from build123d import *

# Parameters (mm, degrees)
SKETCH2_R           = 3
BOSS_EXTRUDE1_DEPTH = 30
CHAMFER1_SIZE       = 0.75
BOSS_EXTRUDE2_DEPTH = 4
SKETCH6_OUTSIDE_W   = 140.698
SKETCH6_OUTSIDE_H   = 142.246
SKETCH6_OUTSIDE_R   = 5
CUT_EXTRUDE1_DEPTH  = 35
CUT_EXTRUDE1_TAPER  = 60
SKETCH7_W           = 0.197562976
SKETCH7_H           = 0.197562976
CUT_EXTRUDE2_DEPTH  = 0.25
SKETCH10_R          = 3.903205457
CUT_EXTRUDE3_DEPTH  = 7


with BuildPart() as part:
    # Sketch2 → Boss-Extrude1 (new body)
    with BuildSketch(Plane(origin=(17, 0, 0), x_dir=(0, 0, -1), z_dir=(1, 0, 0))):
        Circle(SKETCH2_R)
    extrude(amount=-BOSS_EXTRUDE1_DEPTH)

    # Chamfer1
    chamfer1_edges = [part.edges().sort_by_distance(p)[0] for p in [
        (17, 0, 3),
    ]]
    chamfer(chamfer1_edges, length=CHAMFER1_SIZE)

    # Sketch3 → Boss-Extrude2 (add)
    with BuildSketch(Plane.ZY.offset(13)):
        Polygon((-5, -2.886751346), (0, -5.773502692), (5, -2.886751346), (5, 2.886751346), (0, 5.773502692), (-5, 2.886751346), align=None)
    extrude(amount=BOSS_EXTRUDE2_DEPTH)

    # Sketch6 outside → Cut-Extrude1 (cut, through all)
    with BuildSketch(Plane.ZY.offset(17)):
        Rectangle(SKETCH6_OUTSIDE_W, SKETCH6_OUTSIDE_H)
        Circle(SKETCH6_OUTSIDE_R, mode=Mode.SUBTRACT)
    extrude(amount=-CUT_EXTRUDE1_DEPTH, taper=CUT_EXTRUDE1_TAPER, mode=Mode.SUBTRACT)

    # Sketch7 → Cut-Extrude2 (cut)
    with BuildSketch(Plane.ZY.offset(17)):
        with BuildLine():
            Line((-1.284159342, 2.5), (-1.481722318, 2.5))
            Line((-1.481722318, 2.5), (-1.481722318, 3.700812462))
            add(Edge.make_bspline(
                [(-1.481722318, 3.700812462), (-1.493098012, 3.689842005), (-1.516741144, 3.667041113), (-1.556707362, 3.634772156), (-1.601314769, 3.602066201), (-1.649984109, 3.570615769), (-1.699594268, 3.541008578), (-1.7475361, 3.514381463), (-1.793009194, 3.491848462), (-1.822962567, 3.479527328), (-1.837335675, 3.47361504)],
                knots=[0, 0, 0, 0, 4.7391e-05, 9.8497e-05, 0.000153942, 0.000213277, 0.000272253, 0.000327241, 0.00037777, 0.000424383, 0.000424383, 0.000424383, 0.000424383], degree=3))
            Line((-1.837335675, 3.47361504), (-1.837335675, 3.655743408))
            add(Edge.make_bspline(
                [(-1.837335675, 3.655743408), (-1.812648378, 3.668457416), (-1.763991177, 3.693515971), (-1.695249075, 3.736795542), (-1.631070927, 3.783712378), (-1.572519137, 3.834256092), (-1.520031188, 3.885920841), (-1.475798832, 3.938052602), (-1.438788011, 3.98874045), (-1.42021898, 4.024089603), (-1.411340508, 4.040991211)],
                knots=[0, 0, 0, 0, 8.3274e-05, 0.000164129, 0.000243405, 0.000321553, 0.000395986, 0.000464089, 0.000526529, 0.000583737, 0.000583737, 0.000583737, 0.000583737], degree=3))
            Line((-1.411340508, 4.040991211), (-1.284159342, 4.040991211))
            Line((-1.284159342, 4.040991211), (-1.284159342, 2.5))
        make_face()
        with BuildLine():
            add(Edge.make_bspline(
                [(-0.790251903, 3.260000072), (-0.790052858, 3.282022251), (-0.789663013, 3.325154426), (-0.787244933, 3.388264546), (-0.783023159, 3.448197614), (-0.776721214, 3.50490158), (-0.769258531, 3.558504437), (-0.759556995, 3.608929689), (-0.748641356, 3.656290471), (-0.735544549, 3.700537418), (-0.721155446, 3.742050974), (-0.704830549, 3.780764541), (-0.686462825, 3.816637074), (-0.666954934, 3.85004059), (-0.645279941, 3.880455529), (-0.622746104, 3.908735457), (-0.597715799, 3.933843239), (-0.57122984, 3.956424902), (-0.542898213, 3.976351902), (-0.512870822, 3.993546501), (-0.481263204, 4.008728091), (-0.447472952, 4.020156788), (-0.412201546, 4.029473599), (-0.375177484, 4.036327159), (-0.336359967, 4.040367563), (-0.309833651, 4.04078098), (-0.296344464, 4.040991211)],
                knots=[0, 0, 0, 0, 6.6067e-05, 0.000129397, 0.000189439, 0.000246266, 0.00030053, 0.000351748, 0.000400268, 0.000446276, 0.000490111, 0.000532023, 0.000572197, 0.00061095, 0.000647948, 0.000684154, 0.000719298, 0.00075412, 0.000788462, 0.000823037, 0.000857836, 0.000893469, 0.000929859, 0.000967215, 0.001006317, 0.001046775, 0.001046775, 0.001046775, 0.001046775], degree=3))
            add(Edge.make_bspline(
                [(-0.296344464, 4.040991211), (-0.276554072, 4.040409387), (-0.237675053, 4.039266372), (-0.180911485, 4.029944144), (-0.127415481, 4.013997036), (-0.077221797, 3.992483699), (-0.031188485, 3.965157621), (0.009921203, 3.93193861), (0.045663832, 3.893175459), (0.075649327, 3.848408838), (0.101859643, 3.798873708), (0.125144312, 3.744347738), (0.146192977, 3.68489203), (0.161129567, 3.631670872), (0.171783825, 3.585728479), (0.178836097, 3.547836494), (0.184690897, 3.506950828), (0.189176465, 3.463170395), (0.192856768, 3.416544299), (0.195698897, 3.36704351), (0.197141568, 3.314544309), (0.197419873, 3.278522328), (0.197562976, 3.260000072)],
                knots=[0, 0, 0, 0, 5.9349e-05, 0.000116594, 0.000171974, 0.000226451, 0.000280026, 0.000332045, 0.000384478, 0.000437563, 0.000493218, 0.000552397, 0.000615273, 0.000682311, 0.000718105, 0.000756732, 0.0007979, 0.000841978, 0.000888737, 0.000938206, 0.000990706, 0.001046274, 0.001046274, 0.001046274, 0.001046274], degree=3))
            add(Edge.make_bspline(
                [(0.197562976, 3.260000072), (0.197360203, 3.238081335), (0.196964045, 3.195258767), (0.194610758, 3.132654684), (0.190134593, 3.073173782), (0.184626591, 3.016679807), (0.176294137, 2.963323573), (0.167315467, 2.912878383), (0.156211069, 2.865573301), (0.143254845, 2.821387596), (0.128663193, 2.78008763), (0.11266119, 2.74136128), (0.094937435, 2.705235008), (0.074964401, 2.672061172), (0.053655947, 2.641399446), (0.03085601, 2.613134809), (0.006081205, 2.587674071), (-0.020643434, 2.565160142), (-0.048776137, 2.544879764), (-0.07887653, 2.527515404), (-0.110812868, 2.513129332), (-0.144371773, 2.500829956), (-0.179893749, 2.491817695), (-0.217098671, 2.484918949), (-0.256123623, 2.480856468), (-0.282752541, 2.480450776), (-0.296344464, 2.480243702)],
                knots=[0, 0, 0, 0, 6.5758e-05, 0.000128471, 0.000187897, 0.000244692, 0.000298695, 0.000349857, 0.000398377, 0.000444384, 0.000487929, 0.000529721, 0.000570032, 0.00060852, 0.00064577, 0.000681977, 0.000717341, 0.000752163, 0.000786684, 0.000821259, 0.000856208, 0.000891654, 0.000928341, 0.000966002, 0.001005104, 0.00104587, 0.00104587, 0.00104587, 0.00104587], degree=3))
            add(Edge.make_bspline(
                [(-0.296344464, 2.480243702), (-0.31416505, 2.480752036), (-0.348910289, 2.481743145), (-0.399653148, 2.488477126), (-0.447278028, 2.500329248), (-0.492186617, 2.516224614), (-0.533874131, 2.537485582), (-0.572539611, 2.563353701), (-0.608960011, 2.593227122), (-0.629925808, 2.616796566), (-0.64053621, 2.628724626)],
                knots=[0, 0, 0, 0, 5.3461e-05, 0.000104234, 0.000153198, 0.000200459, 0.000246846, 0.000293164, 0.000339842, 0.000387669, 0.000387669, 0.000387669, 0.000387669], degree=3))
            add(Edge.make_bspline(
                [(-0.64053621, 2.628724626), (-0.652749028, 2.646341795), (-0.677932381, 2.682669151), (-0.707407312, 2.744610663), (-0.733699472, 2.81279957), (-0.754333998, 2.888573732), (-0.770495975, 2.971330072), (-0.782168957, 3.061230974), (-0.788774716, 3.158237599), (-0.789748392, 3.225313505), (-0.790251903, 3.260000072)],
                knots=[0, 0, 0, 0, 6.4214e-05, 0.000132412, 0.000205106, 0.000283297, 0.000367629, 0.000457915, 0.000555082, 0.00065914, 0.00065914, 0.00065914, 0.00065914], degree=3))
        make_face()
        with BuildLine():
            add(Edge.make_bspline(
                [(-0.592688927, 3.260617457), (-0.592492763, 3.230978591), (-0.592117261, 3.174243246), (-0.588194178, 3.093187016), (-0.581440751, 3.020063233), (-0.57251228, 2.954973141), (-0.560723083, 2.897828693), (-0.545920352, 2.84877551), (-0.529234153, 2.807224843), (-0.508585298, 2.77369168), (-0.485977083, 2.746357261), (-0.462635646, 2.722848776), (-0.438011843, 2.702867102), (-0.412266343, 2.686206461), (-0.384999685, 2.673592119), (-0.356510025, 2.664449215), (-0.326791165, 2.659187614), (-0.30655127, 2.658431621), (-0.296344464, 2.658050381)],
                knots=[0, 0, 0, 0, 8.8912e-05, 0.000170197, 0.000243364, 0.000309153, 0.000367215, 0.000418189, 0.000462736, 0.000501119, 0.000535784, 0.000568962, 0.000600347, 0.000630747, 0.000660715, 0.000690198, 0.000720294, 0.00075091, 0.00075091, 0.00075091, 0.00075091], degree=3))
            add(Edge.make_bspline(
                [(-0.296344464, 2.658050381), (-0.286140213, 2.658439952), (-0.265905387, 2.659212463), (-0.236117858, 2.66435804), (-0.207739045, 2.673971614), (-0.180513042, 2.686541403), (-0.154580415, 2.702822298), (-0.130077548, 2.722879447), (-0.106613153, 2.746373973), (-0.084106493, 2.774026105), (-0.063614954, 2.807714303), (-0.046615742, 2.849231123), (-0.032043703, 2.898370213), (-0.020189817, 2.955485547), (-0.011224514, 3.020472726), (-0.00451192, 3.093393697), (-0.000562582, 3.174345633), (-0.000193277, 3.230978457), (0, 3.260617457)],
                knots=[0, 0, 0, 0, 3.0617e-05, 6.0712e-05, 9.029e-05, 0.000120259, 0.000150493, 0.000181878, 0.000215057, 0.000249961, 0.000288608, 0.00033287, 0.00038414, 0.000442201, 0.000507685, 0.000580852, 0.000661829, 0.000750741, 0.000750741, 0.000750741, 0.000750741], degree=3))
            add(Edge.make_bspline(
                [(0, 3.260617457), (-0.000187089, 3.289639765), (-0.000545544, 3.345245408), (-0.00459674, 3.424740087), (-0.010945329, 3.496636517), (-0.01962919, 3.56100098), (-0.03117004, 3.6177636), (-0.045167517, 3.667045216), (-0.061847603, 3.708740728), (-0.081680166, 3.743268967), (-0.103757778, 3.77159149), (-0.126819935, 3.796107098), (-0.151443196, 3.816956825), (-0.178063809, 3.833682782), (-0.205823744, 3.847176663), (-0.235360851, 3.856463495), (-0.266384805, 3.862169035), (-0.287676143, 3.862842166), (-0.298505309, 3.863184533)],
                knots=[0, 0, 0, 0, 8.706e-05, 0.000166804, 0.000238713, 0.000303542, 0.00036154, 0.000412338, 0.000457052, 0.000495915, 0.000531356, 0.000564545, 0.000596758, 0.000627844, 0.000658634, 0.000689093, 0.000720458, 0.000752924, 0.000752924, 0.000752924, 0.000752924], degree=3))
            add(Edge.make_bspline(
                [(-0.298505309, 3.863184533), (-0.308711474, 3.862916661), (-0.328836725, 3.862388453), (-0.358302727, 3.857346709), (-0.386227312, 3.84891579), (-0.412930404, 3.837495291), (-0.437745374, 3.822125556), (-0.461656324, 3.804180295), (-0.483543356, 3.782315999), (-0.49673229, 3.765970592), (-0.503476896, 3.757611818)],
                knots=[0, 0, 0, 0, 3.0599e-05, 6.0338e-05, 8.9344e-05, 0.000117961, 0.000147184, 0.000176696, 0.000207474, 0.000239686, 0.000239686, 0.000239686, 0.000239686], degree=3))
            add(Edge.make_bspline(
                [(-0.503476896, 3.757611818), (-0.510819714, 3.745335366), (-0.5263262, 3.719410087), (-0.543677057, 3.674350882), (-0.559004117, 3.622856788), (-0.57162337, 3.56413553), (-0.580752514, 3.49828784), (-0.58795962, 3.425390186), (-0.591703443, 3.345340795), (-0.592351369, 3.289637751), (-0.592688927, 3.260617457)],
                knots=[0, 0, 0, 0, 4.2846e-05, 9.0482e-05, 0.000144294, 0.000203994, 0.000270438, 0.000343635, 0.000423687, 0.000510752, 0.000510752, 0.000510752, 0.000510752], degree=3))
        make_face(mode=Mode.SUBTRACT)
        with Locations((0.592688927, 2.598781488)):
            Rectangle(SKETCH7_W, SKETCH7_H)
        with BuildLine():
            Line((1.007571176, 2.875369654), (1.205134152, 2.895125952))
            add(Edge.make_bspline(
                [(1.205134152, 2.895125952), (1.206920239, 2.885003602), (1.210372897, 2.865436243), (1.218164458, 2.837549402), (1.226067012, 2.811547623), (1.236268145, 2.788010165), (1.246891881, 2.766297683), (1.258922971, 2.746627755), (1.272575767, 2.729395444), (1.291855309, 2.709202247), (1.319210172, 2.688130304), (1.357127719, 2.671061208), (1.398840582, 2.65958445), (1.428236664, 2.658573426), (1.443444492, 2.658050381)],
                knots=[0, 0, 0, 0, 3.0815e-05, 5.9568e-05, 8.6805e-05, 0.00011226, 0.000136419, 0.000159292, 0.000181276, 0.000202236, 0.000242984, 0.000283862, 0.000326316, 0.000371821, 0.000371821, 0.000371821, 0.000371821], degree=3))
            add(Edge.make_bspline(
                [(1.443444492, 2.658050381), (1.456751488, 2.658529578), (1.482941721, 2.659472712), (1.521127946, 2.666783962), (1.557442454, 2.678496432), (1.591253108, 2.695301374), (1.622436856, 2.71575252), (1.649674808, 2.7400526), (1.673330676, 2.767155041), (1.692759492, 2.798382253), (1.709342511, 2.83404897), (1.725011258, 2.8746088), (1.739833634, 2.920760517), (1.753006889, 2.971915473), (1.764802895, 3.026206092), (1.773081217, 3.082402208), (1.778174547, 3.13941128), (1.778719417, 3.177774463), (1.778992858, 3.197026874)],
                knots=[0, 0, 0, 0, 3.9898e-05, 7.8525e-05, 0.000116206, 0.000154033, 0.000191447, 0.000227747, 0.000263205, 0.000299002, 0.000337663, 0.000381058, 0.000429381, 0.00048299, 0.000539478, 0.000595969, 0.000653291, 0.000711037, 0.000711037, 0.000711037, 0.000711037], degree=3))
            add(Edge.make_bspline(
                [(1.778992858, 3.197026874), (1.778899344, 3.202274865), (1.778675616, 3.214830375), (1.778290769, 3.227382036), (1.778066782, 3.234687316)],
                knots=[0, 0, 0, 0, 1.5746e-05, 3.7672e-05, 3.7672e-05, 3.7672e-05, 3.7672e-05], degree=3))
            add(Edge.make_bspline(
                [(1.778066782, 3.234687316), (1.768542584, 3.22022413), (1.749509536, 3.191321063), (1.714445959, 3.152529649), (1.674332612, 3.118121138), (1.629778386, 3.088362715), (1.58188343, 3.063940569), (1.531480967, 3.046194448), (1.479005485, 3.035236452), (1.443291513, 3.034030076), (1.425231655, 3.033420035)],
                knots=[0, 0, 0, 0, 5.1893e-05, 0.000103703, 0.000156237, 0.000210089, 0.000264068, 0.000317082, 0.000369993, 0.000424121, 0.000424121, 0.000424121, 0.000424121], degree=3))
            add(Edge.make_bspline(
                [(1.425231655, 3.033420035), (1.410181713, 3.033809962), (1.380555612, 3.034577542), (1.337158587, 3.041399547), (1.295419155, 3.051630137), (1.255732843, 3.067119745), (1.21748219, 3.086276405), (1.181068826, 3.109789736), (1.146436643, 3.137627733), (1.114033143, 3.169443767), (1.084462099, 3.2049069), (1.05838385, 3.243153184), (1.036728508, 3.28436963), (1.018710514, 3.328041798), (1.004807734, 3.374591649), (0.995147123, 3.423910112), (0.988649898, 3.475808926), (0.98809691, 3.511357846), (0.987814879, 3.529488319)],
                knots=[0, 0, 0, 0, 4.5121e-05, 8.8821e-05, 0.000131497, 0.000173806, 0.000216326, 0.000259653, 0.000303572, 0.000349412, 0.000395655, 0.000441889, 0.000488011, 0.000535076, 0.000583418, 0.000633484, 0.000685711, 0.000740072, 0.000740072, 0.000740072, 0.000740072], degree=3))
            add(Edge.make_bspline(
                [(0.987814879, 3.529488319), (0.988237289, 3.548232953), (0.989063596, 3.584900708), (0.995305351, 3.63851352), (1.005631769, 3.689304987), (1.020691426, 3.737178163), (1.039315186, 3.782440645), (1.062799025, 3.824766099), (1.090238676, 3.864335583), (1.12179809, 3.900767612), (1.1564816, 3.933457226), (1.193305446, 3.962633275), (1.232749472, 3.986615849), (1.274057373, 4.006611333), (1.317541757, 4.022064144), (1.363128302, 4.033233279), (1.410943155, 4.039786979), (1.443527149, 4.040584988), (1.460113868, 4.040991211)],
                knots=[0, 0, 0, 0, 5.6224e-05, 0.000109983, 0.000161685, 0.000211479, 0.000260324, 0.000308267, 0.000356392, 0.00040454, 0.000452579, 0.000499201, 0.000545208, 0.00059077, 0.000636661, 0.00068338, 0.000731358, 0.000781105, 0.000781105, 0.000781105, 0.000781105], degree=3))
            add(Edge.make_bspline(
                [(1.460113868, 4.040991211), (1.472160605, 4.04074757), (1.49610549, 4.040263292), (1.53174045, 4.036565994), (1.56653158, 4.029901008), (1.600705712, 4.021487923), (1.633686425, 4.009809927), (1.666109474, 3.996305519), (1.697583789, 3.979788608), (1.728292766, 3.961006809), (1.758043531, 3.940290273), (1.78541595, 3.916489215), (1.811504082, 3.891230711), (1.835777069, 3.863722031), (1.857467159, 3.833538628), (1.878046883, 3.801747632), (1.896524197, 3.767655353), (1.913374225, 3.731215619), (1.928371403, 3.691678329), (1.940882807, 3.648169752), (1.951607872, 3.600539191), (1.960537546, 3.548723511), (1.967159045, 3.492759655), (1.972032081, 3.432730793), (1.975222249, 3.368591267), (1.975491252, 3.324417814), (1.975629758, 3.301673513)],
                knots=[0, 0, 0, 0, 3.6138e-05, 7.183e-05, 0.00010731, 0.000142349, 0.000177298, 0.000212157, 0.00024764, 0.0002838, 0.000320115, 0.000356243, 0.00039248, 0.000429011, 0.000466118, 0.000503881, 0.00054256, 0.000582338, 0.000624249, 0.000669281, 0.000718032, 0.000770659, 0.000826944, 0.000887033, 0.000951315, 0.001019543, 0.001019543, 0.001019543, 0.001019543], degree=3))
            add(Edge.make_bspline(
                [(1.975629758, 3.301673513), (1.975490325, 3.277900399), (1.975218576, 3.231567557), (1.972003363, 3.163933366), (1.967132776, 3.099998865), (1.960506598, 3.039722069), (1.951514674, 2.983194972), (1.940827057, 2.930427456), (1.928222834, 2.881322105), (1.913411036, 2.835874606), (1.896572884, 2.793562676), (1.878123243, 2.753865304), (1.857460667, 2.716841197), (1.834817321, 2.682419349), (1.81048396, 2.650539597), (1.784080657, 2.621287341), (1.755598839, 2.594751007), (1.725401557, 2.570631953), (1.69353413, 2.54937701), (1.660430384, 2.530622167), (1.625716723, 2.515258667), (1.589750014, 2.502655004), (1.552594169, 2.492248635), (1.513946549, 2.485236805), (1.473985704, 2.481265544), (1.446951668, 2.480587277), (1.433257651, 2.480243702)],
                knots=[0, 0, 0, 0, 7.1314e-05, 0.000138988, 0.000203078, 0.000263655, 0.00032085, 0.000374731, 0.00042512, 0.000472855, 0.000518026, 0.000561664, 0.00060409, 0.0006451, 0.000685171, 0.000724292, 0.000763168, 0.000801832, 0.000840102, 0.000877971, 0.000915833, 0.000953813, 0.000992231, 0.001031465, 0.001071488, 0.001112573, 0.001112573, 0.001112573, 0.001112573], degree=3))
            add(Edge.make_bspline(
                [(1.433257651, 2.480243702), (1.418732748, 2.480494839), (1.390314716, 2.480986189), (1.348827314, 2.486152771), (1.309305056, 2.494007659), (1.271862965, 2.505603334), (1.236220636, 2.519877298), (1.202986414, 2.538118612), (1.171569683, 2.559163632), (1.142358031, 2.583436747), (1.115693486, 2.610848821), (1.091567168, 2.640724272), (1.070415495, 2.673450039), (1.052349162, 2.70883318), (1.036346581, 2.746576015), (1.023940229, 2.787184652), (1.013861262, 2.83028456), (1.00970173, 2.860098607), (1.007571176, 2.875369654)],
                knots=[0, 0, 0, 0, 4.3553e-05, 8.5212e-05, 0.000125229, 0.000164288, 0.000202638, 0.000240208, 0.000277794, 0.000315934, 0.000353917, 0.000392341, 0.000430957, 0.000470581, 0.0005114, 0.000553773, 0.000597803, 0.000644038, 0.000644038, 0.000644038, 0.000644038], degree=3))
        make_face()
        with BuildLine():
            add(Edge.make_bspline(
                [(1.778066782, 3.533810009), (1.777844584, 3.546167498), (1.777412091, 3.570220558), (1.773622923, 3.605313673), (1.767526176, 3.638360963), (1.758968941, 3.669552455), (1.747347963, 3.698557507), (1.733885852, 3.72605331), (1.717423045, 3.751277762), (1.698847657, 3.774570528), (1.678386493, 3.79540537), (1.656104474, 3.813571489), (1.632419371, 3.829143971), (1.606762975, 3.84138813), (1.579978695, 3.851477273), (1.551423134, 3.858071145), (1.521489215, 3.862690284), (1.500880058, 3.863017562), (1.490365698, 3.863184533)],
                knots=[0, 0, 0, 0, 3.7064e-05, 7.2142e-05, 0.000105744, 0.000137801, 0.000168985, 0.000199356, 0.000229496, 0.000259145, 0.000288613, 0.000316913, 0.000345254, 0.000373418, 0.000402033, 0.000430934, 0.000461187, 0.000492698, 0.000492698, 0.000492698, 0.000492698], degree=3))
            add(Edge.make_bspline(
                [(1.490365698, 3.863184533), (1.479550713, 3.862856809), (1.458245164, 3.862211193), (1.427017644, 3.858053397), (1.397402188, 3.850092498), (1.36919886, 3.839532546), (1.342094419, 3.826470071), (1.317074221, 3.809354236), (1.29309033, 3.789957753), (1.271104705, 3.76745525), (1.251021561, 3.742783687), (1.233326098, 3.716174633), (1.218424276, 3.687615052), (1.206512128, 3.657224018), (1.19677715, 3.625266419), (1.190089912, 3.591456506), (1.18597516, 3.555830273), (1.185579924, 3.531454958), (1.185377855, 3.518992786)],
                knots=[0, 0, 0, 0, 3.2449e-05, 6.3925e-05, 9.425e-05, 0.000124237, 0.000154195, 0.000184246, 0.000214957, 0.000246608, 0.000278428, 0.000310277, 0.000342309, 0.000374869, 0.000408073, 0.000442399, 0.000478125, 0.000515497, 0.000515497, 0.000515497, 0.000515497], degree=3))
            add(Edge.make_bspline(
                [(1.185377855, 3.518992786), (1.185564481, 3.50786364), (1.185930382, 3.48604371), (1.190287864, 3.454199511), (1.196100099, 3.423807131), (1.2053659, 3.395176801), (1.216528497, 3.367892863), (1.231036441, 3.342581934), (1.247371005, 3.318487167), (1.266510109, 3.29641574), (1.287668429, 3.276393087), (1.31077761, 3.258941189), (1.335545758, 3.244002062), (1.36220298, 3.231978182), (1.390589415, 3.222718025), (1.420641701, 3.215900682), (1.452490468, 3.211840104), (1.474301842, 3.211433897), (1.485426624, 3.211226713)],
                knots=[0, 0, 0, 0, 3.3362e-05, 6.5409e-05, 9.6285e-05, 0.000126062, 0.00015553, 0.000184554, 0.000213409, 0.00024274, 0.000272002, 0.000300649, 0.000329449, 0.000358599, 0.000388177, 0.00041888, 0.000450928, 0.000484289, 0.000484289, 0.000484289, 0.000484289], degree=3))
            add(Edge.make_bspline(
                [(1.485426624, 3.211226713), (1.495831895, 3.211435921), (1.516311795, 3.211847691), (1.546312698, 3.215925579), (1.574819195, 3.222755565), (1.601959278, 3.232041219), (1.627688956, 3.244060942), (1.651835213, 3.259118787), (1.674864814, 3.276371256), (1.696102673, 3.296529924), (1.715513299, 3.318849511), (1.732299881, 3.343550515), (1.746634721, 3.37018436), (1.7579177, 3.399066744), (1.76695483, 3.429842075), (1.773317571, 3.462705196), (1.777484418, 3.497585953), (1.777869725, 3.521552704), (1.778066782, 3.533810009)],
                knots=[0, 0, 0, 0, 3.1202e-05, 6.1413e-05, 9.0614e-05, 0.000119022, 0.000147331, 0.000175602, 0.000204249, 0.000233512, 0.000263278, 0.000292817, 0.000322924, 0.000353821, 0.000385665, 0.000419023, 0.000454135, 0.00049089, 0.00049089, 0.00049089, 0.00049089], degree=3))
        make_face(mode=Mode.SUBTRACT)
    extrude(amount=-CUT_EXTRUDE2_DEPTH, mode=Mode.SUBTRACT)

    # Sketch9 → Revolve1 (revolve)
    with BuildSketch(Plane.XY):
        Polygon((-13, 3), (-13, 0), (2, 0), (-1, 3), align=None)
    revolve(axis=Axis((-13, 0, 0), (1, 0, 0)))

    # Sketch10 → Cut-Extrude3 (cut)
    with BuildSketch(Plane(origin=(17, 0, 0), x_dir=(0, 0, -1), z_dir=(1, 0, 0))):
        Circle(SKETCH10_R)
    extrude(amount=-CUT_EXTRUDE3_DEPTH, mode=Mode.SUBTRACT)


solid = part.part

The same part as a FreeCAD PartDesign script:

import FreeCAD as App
import Part
import Sketcher

V = App.Vector
Q = App.Units.Quantity


def edges_at(feature, points):
    """Names of the edges that pass closest to the given points."""
    edges = feature.Shape.Edges
    near = lambda p: min(range(len(edges)), key=lambda i: edges[i].distToShape(Part.Vertex(*p))[0])
    return sorted({f"Edge{near(p) + 1}" for p in points})


def add_polygon(sketch, points):
    """Adds a closed chain of lines whose ends are joined by coincident constraints."""
    first, n = sketch.GeometryCount, len(points)
    for a, b in zip(points, points[1:] + points[:1]):
        sketch.addGeometry(Part.LineSegment(App.Vector(*a, 0), App.Vector(*b, 0)), False)
    for i in range(n):
        sketch.addConstraint(Sketcher.Constraint("Coincident", first + i, 2, first + (i + 1) % n, 1))

doc = App.newDocument("Part")
body = doc.addObject("PartDesign::Body", "Body")

# Sketch on YZ plane
sketch1 = body.newObject("Sketcher::SketchObject", "Sketch")
sketch1.AttachmentSupport = (doc.getObject("YZ_Plane"), [""])
sketch1.MapMode = "FlatFace"
sketch1.AttachmentOffset = App.Placement(V(0, 0, 17), App.Rotation())
sketch1.addGeometry(Part.Circle(V(0, 0, 0), V(0, 0, 1), 3), False)
sketch1.addConstraint(Sketcher.Constraint("Coincident", 0, 3, -1, 1))
sketch1.addConstraint(Sketcher.Constraint("Diameter", 0, 6.0))
pad1 = body.newObject("PartDesign::Pad", "Pad")
pad1.Profile = sketch1
pad1.Length = 30
pad1.Reversed = True
doc.recompute()

chamfer = body.newObject("PartDesign::Chamfer", "Chamfer")
chamfer.Base = (pad1, edges_at(pad1, [(17, 0, 3)]))
chamfer.Size = 0.75

# Sketch on YZ plane
sketch2 = body.newObject("Sketcher::SketchObject", "Sketch001")
sketch2.AttachmentSupport = (doc.getObject("YZ_Plane"), [""])
sketch2.MapMode = "FlatFace"
sketch2.AttachmentOffset = App.Placement(V(0, 0, -13), App.Rotation())
add_polygon(sketch2, [(-2.886751, -5), (-5.773503, 0), (-2.886751, 5), (2.886751, 5), (5.773503, 0), (2.886751, -5)])  # lines 0-5
sketch2.addConstraint(Sketcher.Constraint("Horizontal", 2))
sketch2.addConstraint(Sketcher.Constraint("Horizontal", 5))
sketch2.addConstraint(Sketcher.Constraint("Symmetric", 0, 2, 3, 2, -1, 1))
sketch2.addConstraint(Sketcher.Constraint("Symmetric", 1, 2, 4, 2, -1, 1))
sketch2.addConstraint(Sketcher.Constraint("PointOnObject", 0, 2, -1))
sketch2.addConstraint(Sketcher.Constraint("Parallel", 0, 3))
sketch2.addConstraint(Sketcher.Constraint("Vertical", 2, 2, 4, 2))
sketch2.addConstraint(Sketcher.Constraint("Angle", 0, Q("120 deg")))
sketch2.addConstraint(Sketcher.Constraint("DistanceY", -1, 1, 1, 2, 5.0))
sketch2.addConstraint(Sketcher.Constraint("DistanceX", 2, 1, 2, 2, 5.773503))
pad2 = body.newObject("PartDesign::Pad", "Pad001")
pad2.Profile = sketch2
pad2.Length = 4
pad2.Reversed = True

# Sketch on YZ plane
sketch3 = body.newObject("Sketcher::SketchObject", "Sketch002")
sketch3.AttachmentSupport = (doc.getObject("YZ_Plane"), [""])
sketch3.MapMode = "FlatFace"
sketch3.AttachmentOffset = App.Placement(V(0, 0, -17), App.Rotation())
add_polygon(sketch3, [(71.123, -70.349), (-71.123, -70.349), (-71.123, 70.349), (71.123, 70.349)])  # lines 0-3
sketch3.addGeometry(Part.Circle(V(0, 0, 0), V(0, 0, 1), 5), False)  # 4
sketch3.addConstraint(Sketcher.Constraint("Horizontal", 0))
sketch3.addConstraint(Sketcher.Constraint("Vertical", 1))
sketch3.addConstraint(Sketcher.Constraint("Horizontal", 2))
sketch3.addConstraint(Sketcher.Constraint("Vertical", 3))
sketch3.addConstraint(Sketcher.Constraint("Coincident", 4, 3, -1, 1))
sketch3.addConstraint(Sketcher.Constraint("Symmetric", 0, 2, 2, 2, -1, 1))
sketch3.addConstraint(Sketcher.Constraint("Diameter", 4, 10.0))
sketch3.addConstraint(Sketcher.Constraint("DistanceX", 0, 2, 0, 1, 142.246))
sketch3.addConstraint(Sketcher.Constraint("DistanceY", 1, 1, 1, 2, 140.698))
pocket1 = body.newObject("PartDesign::Pocket", "Pocket")
pocket1.Profile = sketch3
pocket1.Length = 35
pocket1.Reversed = True
pocket1.TaperAngle = 60

# Sketch on YZ plane
sketch4 = body.newObject("Sketcher::SketchObject", "Sketch003")
sketch4.AttachmentSupport = (doc.getObject("YZ_Plane"), [""])
sketch4.MapMode = "FlatFace"
sketch4.AttachmentOffset = App.Placement(V(0, 0, -17), App.Rotation())
sketch4.addGeometry(Part.LineSegment(V(2.5, -1.481722, 0), V(2.5, -1.284159, 0)), False)  # 0
sketch4.addGeometry(Part.LineSegment(V(2.5, -1.284159, 0), V(4.040991, -1.284159, 0)), False)  # 1
sketch4.addGeometry(Part.LineSegment(V(4.040991, -1.284159, 0), V(4.040991, -1.411341, 0)), False)  # 2
sketch4.addGeometry(Part.BSplineCurve([V(3.655743, -1.837336, 0), V(3.668457, -1.812648, 0), V(3.693516, -1.763991, 0), V(3.736796, -1.695249, 0), V(3.783712, -1.631071, 0), V(3.834256, -1.572519, 0), V(3.885921, -1.520031, 0), V(3.938053, -1.475799, 0), V(3.98874, -1.438788, 0), V(4.02409, -1.420219, 0), V(4.040991, -1.411341, 0)], [4, 1, 1, 1, 1, 1, 1, 1, 4], [0, 0.000083274, 0.000164129, 0.000243405, 0.000321553, 0.000395986, 0.000464089, 0.000526529, 0.000583737], False, 3, [1, 1, 1, 1, 1, 1, 1, 1, 1, 1, 1], False), False)  # 3
sketch4.addGeometry(Part.LineSegment(V(3.655743, -1.837336, 0), V(3.473615, -1.837336, 0)), False)  # 4
sketch4.addGeometry(Part.BSplineCurve([V(3.700812, -1.481722, 0), V(3.689842, -1.493098, 0), V(3.667041, -1.516741, 0), V(3.634772, -1.556707, 0), V(3.602066, -1.601315, 0), V(3.570616, -1.649984, 0), V(3.541009, -1.699594, 0), V(3.514381, -1.747536, 0), V(3.491848, -1.793009, 0), V(3.479527, -1.822963, 0), V(3.473615, -1.837336, 0)], [4, 1, 1, 1, 1, 1, 1, 1, 4], [0, 0.000047391, 0.000098497, 0.000153942, 0.000213277, 0.000272253, 0.000327241, 0.00037777, 0.000424383], False, 3, [1, 1, 1, 1, 1, 1, 1, 1, 1, 1, 1], False), False)  # 5
sketch4.addGeometry(Part.LineSegment(V(3.700812, -1.481722, 0), V(2.5, -1.481722, 0)), False)  # 6
sketch4.addGeometry(Part.BSplineCurve([V(3.26, -0.790252, 0), V(3.282022, -0.790053, 0), V(3.325154, -0.789663, 0), V(3.388265, -0.787245, 0), V(3.448198, -0.783023, 0), V(3.504902, -0.776721, 0), V(3.558504, -0.769259, 0), V(3.60893, -0.759557, 0), V(3.65629, -0.748641, 0), V(3.700537, -0.735545, 0), V(3.742051, -0.721155, 0), V(3.780765, -0.704831, 0), V(3.816637, -0.686463, 0), V(3.850041, -0.666955, 0), V(3.880456, -0.64528, 0), V(3.908735, -0.622746, 0), V(3.933843, -0.597716, 0), V(3.956425, -0.57123, 0), V(3.976352, -0.542898, 0), V(3.993547, -0.512871, 0), V(4.008728, -0.481263, 0), V(4.020157, -0.447473, 0), V(4.029474, -0.412202, 0), V(4.036327, -0.375177, 0), V(4.040368, -0.33636, 0), V(4.040781, -0.309834, 0), V(4.040991, -0.296344, 0)], [4, 1, 1, 1, 1, 1, 1, 1, 1, 1, 1, 1, 1, 1, 1, 1, 1, 1, 1, 1, 1, 1, 1, 1, 4], [0, 0.000066067, 0.000129397, 0.000189439, 0.000246266, 0.00030053, 0.000351748, 0.000400268, 0.000446276, 0.000490111, 0.000532023, 0.000572197, 0.00061095, 0.000647948, 0.000684154, 0.000719298, 0.00075412, 0.000788462, 0.000823037, 0.000857836, 0.000893469, 0.000929859, 0.000967215, 0.001006317, 0.001046775], False, 3, [1, 1, 1, 1, 1, 1, 1, 1, 1, 1, 1, 1, 1, 1, 1, 1, 1, 1, 1, 1, 1, 1, 1, 1, 1, 1, 1], False), False)  # 7
sketch4.addGeometry(Part.BSplineCurve([V(2.628725, -0.640536, 0), V(2.646342, -0.652749, 0), V(2.682669, -0.677932, 0), V(2.744611, -0.707407, 0), V(2.8128, -0.733699, 0), V(2.888574, -0.754334, 0), V(2.97133, -0.770496, 0), V(3.061231, -0.782169, 0), V(3.158238, -0.788775, 0), V(3.225314, -0.789748, 0), V(3.26, -0.790252, 0)], [4, 1, 1, 1, 1, 1, 1, 1, 4], [0, 0.000064214, 0.000132412, 0.000205106, 0.000283297, 0.000367629, 0.000457915, 0.000555082, 0.00065914], False, 3, [1, 1, 1, 1, 1, 1, 1, 1, 1, 1, 1], False), False)  # 8
sketch4.addGeometry(Part.BSplineCurve([V(2.480244, -0.296344, 0), V(2.480752, -0.314165, 0), V(2.481743, -0.34891, 0), V(2.488477, -0.399653, 0), V(2.500329, -0.447278, 0), V(2.516225, -0.492187, 0), V(2.537486, -0.533874, 0), V(2.563354, -0.57254, 0), V(2.593227, -0.60896, 0), V(2.616797, -0.629926, 0), V(2.628725, -0.640536, 0)], [4, 1, 1, 1, 1, 1, 1, 1, 4], [0, 0.000053461, 0.000104234, 0.000153198, 0.000200459, 0.000246846, 0.000293164, 0.000339842, 0.000387669], False, 3, [1, 1, 1, 1, 1, 1, 1, 1, 1, 1, 1], False), False)  # 9
sketch4.addGeometry(Part.BSplineCurve([V(3.26, 0.197563, 0), V(3.238081, 0.19736, 0), V(3.195259, 0.196964, 0), V(3.132655, 0.194611, 0), V(3.073174, 0.190135, 0), V(3.01668, 0.184627, 0), V(2.963324, 0.176294, 0), V(2.912878, 0.167315, 0), V(2.865573, 0.156211, 0), V(2.821388, 0.143255, 0), V(2.780088, 0.128663, 0), V(2.741361, 0.112661, 0), V(2.705235, 0.094937, 0), V(2.672061, 0.074964, 0), V(2.641399, 0.053656, 0), V(2.613135, 0.030856, 0), V(2.587674, 0.006081, 0), V(2.56516, -0.020643, 0), V(2.54488, -0.048776, 0), V(2.527515, -0.078877, 0), V(2.513129, -0.110813, 0), V(2.50083, -0.144372, 0), V(2.491818, -0.179894, 0), V(2.484919, -0.217099, 0), V(2.480856, -0.256124, 0), V(2.480451, -0.282753, 0), V(2.480244, -0.296344, 0)], [4, 1, 1, 1, 1, 1, 1, 1, 1, 1, 1, 1, 1, 1, 1, 1, 1, 1, 1, 1, 1, 1, 1, 1, 4], [0, 0.000065758, 0.000128471, 0.000187897, 0.000244692, 0.000298695, 0.000349857, 0.000398377, 0.000444384, 0.000487929, 0.000529721, 0.000570032, 0.00060852, 0.00064577, 0.000681977, 0.000717341, 0.000752163, 0.000786684, 0.000821259, 0.000856208, 0.000891654, 0.000928341, 0.000966002, 0.001005104, 0.00104587], False, 3, [1, 1, 1, 1, 1, 1, 1, 1, 1, 1, 1, 1, 1, 1, 1, 1, 1, 1, 1, 1, 1, 1, 1, 1, 1, 1, 1], False), False)  # 10
sketch4.addGeometry(Part.BSplineCurve([V(4.040991, -0.296344, 0), V(4.040409, -0.276554, 0), V(4.039266, -0.237675, 0), V(4.029944, -0.180911, 0), V(4.013997, -0.127415, 0), V(3.992484, -0.077222, 0), V(3.965158, -0.031188, 0), V(3.931939, 0.009921, 0), V(3.893175, 0.045664, 0), V(3.848409, 0.075649, 0), V(3.798874, 0.10186, 0), V(3.744348, 0.125144, 0), V(3.684892, 0.146193, 0), V(3.631671, 0.16113, 0), V(3.585728, 0.171784, 0), V(3.547836, 0.178836, 0), V(3.506951, 0.184691, 0), V(3.46317, 0.189176, 0), V(3.416544, 0.192857, 0), V(3.367044, 0.195699, 0), V(3.314544, 0.197142, 0), V(3.278522, 0.19742, 0), V(3.26, 0.197563, 0)], [4, 1, 1, 1, 1, 1, 1, 1, 1, 1, 1, 1, 1, 1, 1, 1, 1, 1, 1, 1, 4], [0, 0.000059349, 0.000116594, 0.000171974, 0.000226451, 0.000280026, 0.000332045, 0.000384478, 0.000437563, 0.000493218, 0.000552397, 0.000615273, 0.000682311, 0.000718105, 0.000756732, 0.0007979, 0.000841978, 0.000888737, 0.000938206, 0.000990706, 0.001046274], False, 3, [1, 1, 1, 1, 1, 1, 1, 1, 1, 1, 1, 1, 1, 1, 1, 1, 1, 1, 1, 1, 1, 1, 1], False), False)  # 11
sketch4.addGeometry(Part.BSplineCurve([V(3.757612, -0.503477, 0), V(3.745335, -0.51082, 0), V(3.71941, -0.526326, 0), V(3.674351, -0.543677, 0), V(3.622857, -0.559004, 0), V(3.564136, -0.571623, 0), V(3.498288, -0.580753, 0), V(3.42539, -0.58796, 0), V(3.345341, -0.591703, 0), V(3.289638, -0.592351, 0), V(3.260617, -0.592689, 0)], [4, 1, 1, 1, 1, 1, 1, 1, 4], [0, 0.000042846, 0.000090482, 0.000144294, 0.000203994, 0.000270438, 0.000343635, 0.000423687, 0.000510752], False, 3, [1, 1, 1, 1, 1, 1, 1, 1, 1, 1, 1], False), False)  # 12
sketch4.addGeometry(Part.BSplineCurve([V(3.863185, -0.298505, 0), V(3.862917, -0.308711, 0), V(3.862388, -0.328837, 0), V(3.857347, -0.358303, 0), V(3.848916, -0.386227, 0), V(3.837495, -0.41293, 0), V(3.822126, -0.437745, 0), V(3.80418, -0.461656, 0), V(3.782316, -0.483543, 0), V(3.765971, -0.496732, 0), V(3.757612, -0.503477, 0)], [4, 1, 1, 1, 1, 1, 1, 1, 4], [0, 0.000030599, 0.000060338, 0.000089344, 0.000117961, 0.000147184, 0.000176696, 0.000207474, 0.000239686], False, 3, [1, 1, 1, 1, 1, 1, 1, 1, 1, 1, 1], False), False)  # 13
sketch4.addGeometry(Part.BSplineCurve([V(3.260617, 0, 0), V(3.28964, -0.000187, 0), V(3.345245, -0.000546, 0), V(3.42474, -0.004597, 0), V(3.496637, -0.010945, 0), V(3.561001, -0.019629, 0), V(3.617764, -0.03117, 0), V(3.667045, -0.045168, 0), V(3.708741, -0.061848, 0), V(3.743269, -0.08168, 0), V(3.771591, -0.103758, 0), V(3.796107, -0.12682, 0), V(3.816957, -0.151443, 0), V(3.833683, -0.178064, 0), V(3.847177, -0.205824, 0), V(3.856463, -0.235361, 0), V(3.862169, -0.266385, 0), V(3.862842, -0.287676, 0), V(3.863185, -0.298505, 0)], [4, 1, 1, 1, 1, 1, 1, 1, 1, 1, 1, 1, 1, 1, 1, 1, 4], [0, 0.00008706, 0.000166804, 0.000238713, 0.000303542, 0.00036154, 0.000412338, 0.000457052, 0.000495915, 0.000531356, 0.000564545, 0.000596758, 0.000627844, 0.000658634, 0.000689093, 0.000720458, 0.000752924], False, 3, [1, 1, 1, 1, 1, 1, 1, 1, 1, 1, 1, 1, 1, 1, 1, 1, 1, 1, 1], False), False)  # 14
sketch4.addGeometry(Part.BSplineCurve([V(2.65805, -0.296344, 0), V(2.65844, -0.28614, 0), V(2.659212, -0.265905, 0), V(2.664358, -0.236118, 0), V(2.673972, -0.207739, 0), V(2.686541, -0.180513, 0), V(2.702822, -0.15458, 0), V(2.722879, -0.130078, 0), V(2.746374, -0.106613, 0), V(2.774026, -0.084106, 0), V(2.807714, -0.063615, 0), V(2.849231, -0.046616, 0), V(2.89837, -0.032044, 0), V(2.955486, -0.02019, 0), V(3.020473, -0.011225, 0), V(3.093394, -0.004512, 0), V(3.174346, -0.000563, 0), V(3.230978, -0.000193, 0), V(3.260617, 0, 0)], [4, 1, 1, 1, 1, 1, 1, 1, 1, 1, 1, 1, 1, 1, 1, 1, 4], [0, 0.000030617, 0.000060712, 0.00009029, 0.000120259, 0.000150493, 0.000181878, 0.000215057, 0.000249961, 0.000288608, 0.00033287, 0.00038414, 0.000442201, 0.000507685, 0.000580852, 0.000661829, 0.000750741], False, 3, [1, 1, 1, 1, 1, 1, 1, 1, 1, 1, 1, 1, 1, 1, 1, 1, 1, 1, 1], False), False)  # 15
sketch4.addGeometry(Part.BSplineCurve([V(3.260617, -0.592689, 0), V(3.230979, -0.592493, 0), V(3.174243, -0.592117, 0), V(3.093187, -0.588194, 0), V(3.020063, -0.581441, 0), V(2.954973, -0.572512, 0), V(2.897829, -0.560723, 0), V(2.848776, -0.54592, 0), V(2.807225, -0.529234, 0), V(2.773692, -0.508585, 0), V(2.746357, -0.485977, 0), V(2.722849, -0.462636, 0), V(2.702867, -0.438012, 0), V(2.686206, -0.412266, 0), V(2.673592, -0.385, 0), V(2.664449, -0.35651, 0), V(2.659188, -0.326791, 0), V(2.658432, -0.306551, 0), V(2.65805, -0.296344, 0)], [4, 1, 1, 1, 1, 1, 1, 1, 1, 1, 1, 1, 1, 1, 1, 1, 4], [0, 0.000088912, 0.000170197, 0.000243364, 0.000309153, 0.000367215, 0.000418189, 0.000462736, 0.000501119, 0.000535784, 0.000568962, 0.000600347, 0.000630747, 0.000660715, 0.000690198, 0.000720294, 0.00075091], False, 3, [1, 1, 1, 1, 1, 1, 1, 1, 1, 1, 1, 1, 1, 1, 1, 1, 1, 1, 1], False), False)  # 16
add_polygon(sketch4, [(2.697563, 0.493907), (2.5, 0.493907), (2.5, 0.69147), (2.697563, 0.69147)])  # lines 17-20
sketch4.addGeometry(Part.LineSegment(V(2.895126, 1.205134, 0), V(2.87537, 1.007571, 0)), False)  # 21
sketch4.addGeometry(Part.BSplineCurve([V(2.480244, 1.433258, 0), V(2.480495, 1.418733, 0), V(2.480986, 1.390315, 0), V(2.486153, 1.348827, 0), V(2.494008, 1.309305, 0), V(2.505603, 1.271863, 0), V(2.519877, 1.236221, 0), V(2.538119, 1.202986, 0), V(2.559164, 1.17157, 0), V(2.583437, 1.142358, 0), V(2.610849, 1.115693, 0), V(2.640724, 1.091567, 0), V(2.67345, 1.070415, 0), V(2.708833, 1.052349, 0), V(2.746576, 1.036347, 0), V(2.787185, 1.02394, 0), V(2.830285, 1.013861, 0), V(2.860099, 1.009702, 0), V(2.87537, 1.007571, 0)], [4, 1, 1, 1, 1, 1, 1, 1, 1, 1, 1, 1, 1, 1, 1, 1, 4], [0, 0.000043553, 0.000085212, 0.000125229, 0.000164288, 0.000202638, 0.000240208, 0.000277794, 0.000315934, 0.000353917, 0.000392341, 0.000430957, 0.000470581, 0.0005114, 0.000553773, 0.000597803, 0.000644038], False, 3, [1, 1, 1, 1, 1, 1, 1, 1, 1, 1, 1, 1, 1, 1, 1, 1, 1, 1, 1], False), False)  # 22
sketch4.addGeometry(Part.BSplineCurve([V(3.301674, 1.97563, 0), V(3.2779, 1.97549, 0), V(3.231568, 1.975219, 0), V(3.163933, 1.972003, 0), V(3.099999, 1.967133, 0), V(3.039722, 1.960507, 0), V(2.983195, 1.951515, 0), V(2.930427, 1.940827, 0), V(2.881322, 1.928223, 0), V(2.835875, 1.913411, 0), V(2.793563, 1.896573, 0), V(2.753865, 1.878123, 0), V(2.716841, 1.857461, 0), V(2.682419, 1.834817, 0), V(2.65054, 1.810484, 0), V(2.621287, 1.784081, 0), V(2.594751, 1.755599, 0), V(2.570632, 1.725402, 0), V(2.549377, 1.693534, 0), V(2.530622, 1.66043, 0), V(2.515259, 1.625717, 0), V(2.502655, 1.58975, 0), V(2.492249, 1.552594, 0), V(2.485237, 1.513947, 0), V(2.481266, 1.473986, 0), V(2.480587, 1.446952, 0), V(2.480244, 1.433258, 0)], [4, 1, 1, 1, 1, 1, 1, 1, 1, 1, 1, 1, 1, 1, 1, 1, 1, 1, 1, 1, 1, 1, 1, 1, 4], [0, 0.000071314, 0.000138988, 0.000203078, 0.000263655, 0.00032085, 0.000374731, 0.00042512, 0.000472855, 0.000518026, 0.000561664, 0.00060409, 0.0006451, 0.000685171, 0.000724292, 0.000763168, 0.000801832, 0.000840102, 0.000877971, 0.000915833, 0.000953813, 0.000992231, 0.001031465, 0.001071488, 0.001112573], False, 3, [1, 1, 1, 1, 1, 1, 1, 1, 1, 1, 1, 1, 1, 1, 1, 1, 1, 1, 1, 1, 1, 1, 1, 1, 1, 1, 1], False), False)  # 23
sketch4.addGeometry(Part.BSplineCurve([V(4.040991, 1.460114, 0), V(4.040748, 1.472161, 0), V(4.040263, 1.496105, 0), V(4.036566, 1.53174, 0), V(4.029901, 1.566532, 0), V(4.021488, 1.600706, 0), V(4.00981, 1.633686, 0), V(3.996306, 1.666109, 0), V(3.979789, 1.697584, 0), V(3.961007, 1.728293, 0), V(3.94029, 1.758044, 0), V(3.916489, 1.785416, 0), V(3.891231, 1.811504, 0), V(3.863722, 1.835777, 0), V(3.833539, 1.857467, 0), V(3.801748, 1.878047, 0), V(3.767655, 1.896524, 0), V(3.731216, 1.913374, 0), V(3.691678, 1.928371, 0), V(3.64817, 1.940883, 0), V(3.600539, 1.951608, 0), V(3.548724, 1.960538, 0), V(3.49276, 1.967159, 0), V(3.432731, 1.972032, 0), V(3.368591, 1.975222, 0), V(3.324418, 1.975491, 0), V(3.301674, 1.97563, 0)], [4, 1, 1, 1, 1, 1, 1, 1, 1, 1, 1, 1, 1, 1, 1, 1, 1, 1, 1, 1, 1, 1, 1, 1, 4], [0, 0.000036138, 0.00007183, 0.00010731, 0.000142349, 0.000177298, 0.000212157, 0.00024764, 0.0002838, 0.000320115, 0.000356243, 0.00039248, 0.000429011, 0.000466118, 0.000503881, 0.00054256, 0.000582338, 0.000624249, 0.000669281, 0.000718032, 0.000770659, 0.000826944, 0.000887033, 0.000951315, 0.001019543], False, 3, [1, 1, 1, 1, 1, 1, 1, 1, 1, 1, 1, 1, 1, 1, 1, 1, 1, 1, 1, 1, 1, 1, 1, 1, 1, 1, 1], False), False)  # 24
sketch4.addGeometry(Part.BSplineCurve([V(3.529488, 0.987815, 0), V(3.548233, 0.988237, 0), V(3.584901, 0.989064, 0), V(3.638514, 0.995305, 0), V(3.689305, 1.005632, 0), V(3.737178, 1.020691, 0), V(3.782441, 1.039315, 0), V(3.824766, 1.062799, 0), V(3.864336, 1.090239, 0), V(3.900768, 1.121798, 0), V(3.933457, 1.156482, 0), V(3.962633, 1.193305, 0), V(3.986616, 1.232749, 0), V(4.006611, 1.274057, 0), V(4.022064, 1.317542, 0), V(4.033233, 1.363128, 0), V(4.039787, 1.410943, 0), V(4.040585, 1.443527, 0), V(4.040991, 1.460114, 0)], [4, 1, 1, 1, 1, 1, 1, 1, 1, 1, 1, 1, 1, 1, 1, 1, 4], [0, 0.000056224, 0.000109983, 0.000161685, 0.000211479, 0.000260324, 0.000308267, 0.000356392, 0.00040454, 0.000452579, 0.000499201, 0.000545208, 0.00059077, 0.000636661, 0.00068338, 0.000731358, 0.000781105], False, 3, [1, 1, 1, 1, 1, 1, 1, 1, 1, 1, 1, 1, 1, 1, 1, 1, 1, 1, 1], False), False)  # 25
sketch4.addGeometry(Part.BSplineCurve([V(3.03342, 1.425232, 0), V(3.03381, 1.410182, 0), V(3.034578, 1.380556, 0), V(3.0414, 1.337159, 0), V(3.05163, 1.295419, 0), V(3.06712, 1.255733, 0), V(3.086276, 1.217482, 0), V(3.10979, 1.181069, 0), V(3.137628, 1.146437, 0), V(3.169444, 1.114033, 0), V(3.204907, 1.084462, 0), V(3.243153, 1.058384, 0), V(3.28437, 1.036729, 0), V(3.328042, 1.018711, 0), V(3.374592, 1.004808, 0), V(3.42391, 0.995147, 0), V(3.475809, 0.98865, 0), V(3.511358, 0.988097, 0), V(3.529488, 0.987815, 0)], [4, 1, 1, 1, 1, 1, 1, 1, 1, 1, 1, 1, 1, 1, 1, 1, 4], [0, 0.000045121, 0.000088821, 0.000131497, 0.000173806, 0.000216326, 0.000259653, 0.000303572, 0.000349412, 0.000395655, 0.000441889, 0.000488011, 0.000535076, 0.000583418, 0.000633484, 0.000685711, 0.000740072], False, 3, [1, 1, 1, 1, 1, 1, 1, 1, 1, 1, 1, 1, 1, 1, 1, 1, 1, 1, 1], False), False)  # 26
sketch4.addGeometry(Part.BSplineCurve([V(3.234687, 1.778067, 0), V(3.220224, 1.768543, 0), V(3.191321, 1.74951, 0), V(3.15253, 1.714446, 0), V(3.118121, 1.674333, 0), V(3.088363, 1.629778, 0), V(3.063941, 1.581883, 0), V(3.046194, 1.531481, 0), V(3.035236, 1.479005, 0), V(3.03403, 1.443292, 0), V(3.03342, 1.425232, 0)], [4, 1, 1, 1, 1, 1, 1, 1, 4], [0, 0.000051893, 0.000103703, 0.000156237, 0.000210089, 0.000264068, 0.000317082, 0.000369993, 0.000424121], False, 3, [1, 1, 1, 1, 1, 1, 1, 1, 1, 1, 1], False), False)  # 27
sketch4.addGeometry(Part.BSplineCurve([V(3.197027, 1.778993, 0), V(3.202275, 1.778899, 0), V(3.21483, 1.778676, 0), V(3.227382, 1.778291, 0), V(3.234687, 1.778067, 0)], [4, 1, 4], [0, 0.000015746, 0.000037672], False, 3, [1, 1, 1, 1, 1], False), False)  # 28
sketch4.addGeometry(Part.BSplineCurve([V(2.65805, 1.443444, 0), V(2.65853, 1.456751, 0), V(2.659473, 1.482942, 0), V(2.666784, 1.521128, 0), V(2.678496, 1.557442, 0), V(2.695301, 1.591253, 0), V(2.715753, 1.622437, 0), V(2.740053, 1.649675, 0), V(2.767155, 1.673331, 0), V(2.798382, 1.692759, 0), V(2.834049, 1.709343, 0), V(2.874609, 1.725011, 0), V(2.920761, 1.739834, 0), V(2.971915, 1.753007, 0), V(3.026206, 1.764803, 0), V(3.082402, 1.773081, 0), V(3.139411, 1.778175, 0), V(3.177774, 1.778719, 0), V(3.197027, 1.778993, 0)], [4, 1, 1, 1, 1, 1, 1, 1, 1, 1, 1, 1, 1, 1, 1, 1, 4], [0, 0.000039898, 0.000078525, 0.000116206, 0.000154033, 0.000191447, 0.000227747, 0.000263205, 0.000299002, 0.000337663, 0.000381058, 0.000429381, 0.00048299, 0.000539478, 0.000595969, 0.000653291, 0.000711037], False, 3, [1, 1, 1, 1, 1, 1, 1, 1, 1, 1, 1, 1, 1, 1, 1, 1, 1, 1, 1], False), False)  # 29
sketch4.addGeometry(Part.BSplineCurve([V(2.895126, 1.205134, 0), V(2.885004, 1.20692, 0), V(2.865436, 1.210373, 0), V(2.837549, 1.218164, 0), V(2.811548, 1.226067, 0), V(2.78801, 1.236268, 0), V(2.766298, 1.246892, 0), V(2.746628, 1.258923, 0), V(2.729395, 1.272576, 0), V(2.709202, 1.291855, 0), V(2.68813, 1.31921, 0), V(2.671061, 1.357128, 0), V(2.659584, 1.398841, 0), V(2.658573, 1.428237, 0), V(2.65805, 1.443444, 0)], [4, 1, 1, 1, 1, 1, 1, 1, 1, 1, 1, 1, 4], [0, 0.000030815, 0.000059568, 0.000086805, 0.00011226, 0.000136419, 0.000159292, 0.000181276, 0.000202236, 0.000242984, 0.000283862, 0.000326316, 0.000371821], False, 3, [1, 1, 1, 1, 1, 1, 1, 1, 1, 1, 1, 1, 1, 1, 1], False), False)  # 30
sketch4.addGeometry(Part.BSplineCurve([V(3.211227, 1.485427, 0), V(3.211436, 1.495832, 0), V(3.211848, 1.516312, 0), V(3.215926, 1.546313, 0), V(3.222756, 1.574819, 0), V(3.232041, 1.601959, 0), V(3.244061, 1.627689, 0), V(3.259119, 1.651835, 0), V(3.276371, 1.674865, 0), V(3.29653, 1.696103, 0), V(3.31885, 1.715513, 0), V(3.343551, 1.7323, 0), V(3.370184, 1.746635, 0), V(3.399067, 1.757918, 0), V(3.429842, 1.766955, 0), V(3.462705, 1.773318, 0), V(3.497586, 1.777484, 0), V(3.521553, 1.77787, 0), V(3.53381, 1.778067, 0)], [4, 1, 1, 1, 1, 1, 1, 1, 1, 1, 1, 1, 1, 1, 1, 1, 4], [0, 0.000031202, 0.000061413, 0.000090614, 0.000119022, 0.000147331, 0.000175602, 0.000204249, 0.000233512, 0.000263278, 0.000292817, 0.000322924, 0.000353821, 0.000385665, 0.000419023, 0.000454135, 0.00049089], False, 3, [1, 1, 1, 1, 1, 1, 1, 1, 1, 1, 1, 1, 1, 1, 1, 1, 1, 1, 1], False), False)  # 31
sketch4.addGeometry(Part.BSplineCurve([V(3.518993, 1.185378, 0), V(3.507864, 1.185564, 0), V(3.486044, 1.18593, 0), V(3.4542, 1.190288, 0), V(3.423807, 1.1961, 0), V(3.395177, 1.205366, 0), V(3.367893, 1.216528, 0), V(3.342582, 1.231036, 0), V(3.318487, 1.247371, 0), V(3.296416, 1.26651, 0), V(3.276393, 1.287668, 0), V(3.258941, 1.310778, 0), V(3.244002, 1.335546, 0), V(3.231978, 1.362203, 0), V(3.222718, 1.390589, 0), V(3.215901, 1.420642, 0), V(3.21184, 1.45249, 0), V(3.211434, 1.474302, 0), V(3.211227, 1.485427, 0)], [4, 1, 1, 1, 1, 1, 1, 1, 1, 1, 1, 1, 1, 1, 1, 1, 4], [0, 0.000033362, 0.000065409, 0.000096285, 0.000126062, 0.00015553, 0.000184554, 0.000213409, 0.00024274, 0.000272002, 0.000300649, 0.000329449, 0.000358599, 0.000388177, 0.00041888, 0.000450928, 0.000484289], False, 3, [1, 1, 1, 1, 1, 1, 1, 1, 1, 1, 1, 1, 1, 1, 1, 1, 1, 1, 1], False), False)  # 32
sketch4.addGeometry(Part.BSplineCurve([V(3.863185, 1.490366, 0), V(3.862857, 1.479551, 0), V(3.862211, 1.458245, 0), V(3.858053, 1.427018, 0), V(3.850092, 1.397402, 0), V(3.839533, 1.369199, 0), V(3.82647, 1.342094, 0), V(3.809354, 1.317074, 0), V(3.789958, 1.29309, 0), V(3.767455, 1.271105, 0), V(3.742784, 1.251022, 0), V(3.716175, 1.233326, 0), V(3.687615, 1.218424, 0), V(3.657224, 1.206512, 0), V(3.625266, 1.196777, 0), V(3.591457, 1.19009, 0), V(3.55583, 1.185975, 0), V(3.531455, 1.18558, 0), V(3.518993, 1.185378, 0)], [4, 1, 1, 1, 1, 1, 1, 1, 1, 1, 1, 1, 1, 1, 1, 1, 4], [0, 0.000032449, 0.000063925, 0.00009425, 0.000124237, 0.000154195, 0.000184246, 0.000214957, 0.000246608, 0.000278428, 0.000310277, 0.000342309, 0.000374869, 0.000408073, 0.000442399, 0.000478125, 0.000515497], False, 3, [1, 1, 1, 1, 1, 1, 1, 1, 1, 1, 1, 1, 1, 1, 1, 1, 1, 1, 1], False), False)  # 33
sketch4.addGeometry(Part.BSplineCurve([V(3.53381, 1.778067, 0), V(3.546167, 1.777845, 0), V(3.570221, 1.777412, 0), V(3.605314, 1.773623, 0), V(3.638361, 1.767526, 0), V(3.669552, 1.758969, 0), V(3.698558, 1.747348, 0), V(3.726053, 1.733886, 0), V(3.751278, 1.717423, 0), V(3.774571, 1.698848, 0), V(3.795405, 1.678386, 0), V(3.813571, 1.656104, 0), V(3.829144, 1.632419, 0), V(3.841388, 1.606763, 0), V(3.851477, 1.579979, 0), V(3.858071, 1.551423, 0), V(3.86269, 1.521489, 0), V(3.863018, 1.50088, 0), V(3.863185, 1.490366, 0)], [4, 1, 1, 1, 1, 1, 1, 1, 1, 1, 1, 1, 1, 1, 1, 1, 4], [0, 0.000037064, 0.000072142, 0.000105744, 0.000137801, 0.000168985, 0.000199356, 0.000229496, 0.000259145, 0.000288613, 0.000316913, 0.000345254, 0.000373418, 0.000402033, 0.000430934, 0.000461187, 0.000492698], False, 3, [1, 1, 1, 1, 1, 1, 1, 1, 1, 1, 1, 1, 1, 1, 1, 1, 1, 1, 1], False), False)  # 34
sketch4.addConstraint(Sketcher.Constraint("Block", 3))
sketch4.addConstraint(Sketcher.Constraint("Block", 5))
sketch4.addConstraint(Sketcher.Constraint("Block", 7))
sketch4.addConstraint(Sketcher.Constraint("Block", 8))
sketch4.addConstraint(Sketcher.Constraint("Block", 9))
sketch4.addConstraint(Sketcher.Constraint("Block", 10))
sketch4.addConstraint(Sketcher.Constraint("Block", 11))
sketch4.addConstraint(Sketcher.Constraint("Block", 12))
sketch4.addConstraint(Sketcher.Constraint("Block", 13))
sketch4.addConstraint(Sketcher.Constraint("Block", 14))
sketch4.addConstraint(Sketcher.Constraint("Block", 15))
sketch4.addConstraint(Sketcher.Constraint("Block", 16))
sketch4.addConstraint(Sketcher.Constraint("Block", 22))
sketch4.addConstraint(Sketcher.Constraint("Block", 23))
sketch4.addConstraint(Sketcher.Constraint("Block", 24))
sketch4.addConstraint(Sketcher.Constraint("Block", 25))
sketch4.addConstraint(Sketcher.Constraint("Block", 26))
sketch4.addConstraint(Sketcher.Constraint("Block", 27))
sketch4.addConstraint(Sketcher.Constraint("Block", 28))
sketch4.addConstraint(Sketcher.Constraint("Block", 29))
sketch4.addConstraint(Sketcher.Constraint("Block", 30))
sketch4.addConstraint(Sketcher.Constraint("Block", 31))
sketch4.addConstraint(Sketcher.Constraint("Block", 32))
sketch4.addConstraint(Sketcher.Constraint("Block", 33))
sketch4.addConstraint(Sketcher.Constraint("Block", 34))
sketch4.addConstraint(Sketcher.Constraint("Coincident", 0, 2, 1, 1))
sketch4.addConstraint(Sketcher.Constraint("Coincident", 1, 2, 2, 1))
sketch4.addConstraint(Sketcher.Constraint("Coincident", 2, 2, 3, 2))
sketch4.addConstraint(Sketcher.Constraint("Coincident", 3, 1, 4, 1))
sketch4.addConstraint(Sketcher.Constraint("Coincident", 4, 2, 5, 2))
sketch4.addConstraint(Sketcher.Constraint("Coincident", 5, 1, 6, 1))
sketch4.addConstraint(Sketcher.Constraint("Coincident", 6, 2, 0, 1))
sketch4.addConstraint(Sketcher.Constraint("Coincident", 21, 2, 22, 2))
sketch4.addConstraint(Sketcher.Constraint("Coincident", 30, 1, 21, 1))
sketch4.addConstraint(Sketcher.Constraint("Vertical", 0))
sketch4.addConstraint(Sketcher.Constraint("Horizontal", 1))
sketch4.addConstraint(Sketcher.Constraint("Vertical", 2))
sketch4.addConstraint(Sketcher.Constraint("Horizontal", 6))
sketch4.addConstraint(Sketcher.Constraint("Horizontal", 17))
sketch4.addConstraint(Sketcher.Constraint("Vertical", 18))
sketch4.addConstraint(Sketcher.Constraint("Horizontal", 19))
sketch4.addConstraint(Sketcher.Constraint("Vertical", 20))
sketch4.addConstraint(Sketcher.Constraint("DistanceX", -1, 1, 0, 2, 2.5))
sketch4.addConstraint(Sketcher.Constraint("DistanceX", -1, 1, 17, 2, 2.5))
sketch4.addConstraint(Sketcher.Constraint("DistanceY", 2, 2, 2, 1, 0.127181))
sketch4.addConstraint(Sketcher.Constraint("DistanceY", 19, 2, 21, 2, 0.316101))
sketch4.addConstraint(Sketcher.Constraint("DistanceX", 17, 2, 17, 1, 0.197563))
sketch4.addConstraint(Sketcher.Constraint("DistanceY", 18, 1, 18, 2, 0.197563))
pocket2 = body.newObject("PartDesign::Pocket", "Pocket001")
pocket2.Profile = sketch4
pocket2.Length = 0.25
pocket2.Reversed = True

# Sketch on XY plane
sketch5 = body.newObject("Sketcher::SketchObject", "Sketch004")
sketch5.AttachmentSupport = (doc.getObject("XY_Plane"), [""])
sketch5.MapMode = "FlatFace"
add_polygon(sketch5, [(-13, 3), (-13, 0), (2, 0), (-1, 3)])  # lines 0-3
sketch5.addConstraint(Sketcher.Constraint("Vertical", 0))
sketch5.addConstraint(Sketcher.Constraint("Horizontal", 1))
sketch5.addConstraint(Sketcher.Constraint("Horizontal", 3))
sketch5.addConstraint(Sketcher.Constraint("PointOnObject", 0, 2, -1))
sketch5.addConstraint(Sketcher.Constraint("DistanceX", 1, 1, 1, 2, 15.0))
sketch5.addConstraint(Sketcher.Constraint("DistanceX", 3, 2, 3, 1, 12.0))
sketch5.addConstraint(Sketcher.Constraint("DistanceY", 0, 2, 0, 1, 3.0))
sketch5.addConstraint(Sketcher.Constraint("DistanceX", 0, 2, -1, 1, 13.0))
revolution = body.newObject("PartDesign::Revolution", "Revolution")
revolution.Profile = sketch5
revolution.ReferenceAxis = (sketch5, ["H_Axis"])
revolution.Angle = 360

# Sketch on YZ plane
sketch6 = body.newObject("Sketcher::SketchObject", "Sketch005")
sketch6.AttachmentSupport = (doc.getObject("YZ_Plane"), [""])
sketch6.MapMode = "FlatFace"
sketch6.AttachmentOffset = App.Placement(V(0, 0, 17), App.Rotation())
sketch6.addGeometry(Part.Circle(V(0, 0, 0), V(0, 0, 1), 3.903205), False)
sketch6.addConstraint(Sketcher.Constraint("Coincident", 0, 3, -1, 1))
sketch6.addConstraint(Sketcher.Constraint("Diameter", 0, 7.806411))
pocket3 = body.newObject("PartDesign::Pocket", "Pocket002")
pocket3.Profile = sketch6
pocket3.Length = 7

doc.recompute()
